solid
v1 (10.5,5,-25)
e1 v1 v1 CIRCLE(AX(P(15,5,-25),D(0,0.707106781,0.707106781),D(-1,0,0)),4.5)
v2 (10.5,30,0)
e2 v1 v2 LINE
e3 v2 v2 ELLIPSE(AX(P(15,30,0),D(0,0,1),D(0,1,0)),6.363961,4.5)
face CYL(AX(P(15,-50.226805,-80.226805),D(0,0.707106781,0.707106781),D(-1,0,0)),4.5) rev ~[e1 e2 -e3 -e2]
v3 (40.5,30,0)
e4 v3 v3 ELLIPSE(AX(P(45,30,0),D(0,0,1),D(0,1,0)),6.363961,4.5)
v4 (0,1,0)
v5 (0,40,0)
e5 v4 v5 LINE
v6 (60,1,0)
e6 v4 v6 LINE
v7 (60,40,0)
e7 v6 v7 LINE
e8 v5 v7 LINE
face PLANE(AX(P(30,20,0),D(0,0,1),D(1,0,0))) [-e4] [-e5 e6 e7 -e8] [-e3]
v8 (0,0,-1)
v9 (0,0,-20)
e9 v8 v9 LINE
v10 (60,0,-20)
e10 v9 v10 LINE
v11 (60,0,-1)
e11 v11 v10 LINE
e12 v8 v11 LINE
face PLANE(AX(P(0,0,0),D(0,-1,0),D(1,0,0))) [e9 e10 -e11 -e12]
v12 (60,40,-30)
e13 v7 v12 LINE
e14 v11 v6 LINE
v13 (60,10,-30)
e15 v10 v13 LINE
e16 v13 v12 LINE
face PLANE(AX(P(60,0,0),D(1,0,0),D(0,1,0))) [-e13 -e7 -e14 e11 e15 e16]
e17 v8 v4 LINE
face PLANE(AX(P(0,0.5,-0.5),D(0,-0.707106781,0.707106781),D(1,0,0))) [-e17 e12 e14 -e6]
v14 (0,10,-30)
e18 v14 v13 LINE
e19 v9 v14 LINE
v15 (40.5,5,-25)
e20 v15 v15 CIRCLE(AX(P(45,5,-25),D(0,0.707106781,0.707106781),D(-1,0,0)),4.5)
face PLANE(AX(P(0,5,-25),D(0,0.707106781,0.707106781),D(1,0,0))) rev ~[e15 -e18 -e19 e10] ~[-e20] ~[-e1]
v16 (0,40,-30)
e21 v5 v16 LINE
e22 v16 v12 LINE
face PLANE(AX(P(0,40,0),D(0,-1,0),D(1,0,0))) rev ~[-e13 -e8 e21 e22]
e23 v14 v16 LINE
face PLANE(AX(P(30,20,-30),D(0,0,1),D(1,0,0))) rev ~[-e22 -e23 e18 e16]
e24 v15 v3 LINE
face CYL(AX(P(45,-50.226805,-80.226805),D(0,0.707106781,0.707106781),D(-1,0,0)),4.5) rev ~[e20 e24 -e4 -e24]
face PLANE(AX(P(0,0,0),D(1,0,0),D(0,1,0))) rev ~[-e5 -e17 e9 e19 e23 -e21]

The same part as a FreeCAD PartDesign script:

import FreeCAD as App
import Part
import Sketcher

V = App.Vector


def edges_at(feature, points):
    """Names of the edges that pass closest to the given points."""
    edges = feature.Shape.Edges
    near = lambda p: min(range(len(edges)), key=lambda i: edges[i].distToShape(Part.Vertex(*p))[0])
    return sorted({f"Edge{near(p) + 1}" for p in points})

doc = App.newDocument("Part")
params = doc.addObject("Spreadsheet::Sheet", "Params")
for row, (alias, value) in enumerate([
    ("sketch1_width", "60 mm"),
    ("sketch1_height", "40 mm"),
    ("pad1_length", "30 mm"),
    ("chamfer_size", "10 mm"),
    ("sketch2_diameter", "9 mm"),
    ("hole_diameter", "9 mm"),
    ("chamfer2_size", "1 mm"),
], start=1):
    params.set(f"A{row}", alias)
    params.set(f"B{row}", "=" + value)
    params.setAlias(f"B{row}", alias)

body = doc.addObject("PartDesign::Body", "Body")

# Sketch on XY plane
sketch1 = body.newObject("Sketcher::SketchObject", "Sketch")
sketch1.AttachmentSupport = (doc.getObject("XY_Plane"), [""])
sketch1.MapMode = "FlatFace"
sketch1.addGeometry([
    Part.LineSegment(V(0, 40, 0), V(0, 0, 0)),
    Part.LineSegment(V(0, 0, 0), V(60, 0, 0)),
    Part.LineSegment(V(60, 0, 0), V(60, 40, 0)),
    Part.LineSegment(V(60, 40, 0), V(0, 40, 0)),
], False)
sketch1.addConstraint([
    Sketcher.Constraint("Coincident", 0, 2, 1, 1),
    Sketcher.Constraint("Coincident", 1, 2, 2, 1),
    Sketcher.Constraint("Coincident", 2, 2, 3, 1),
    Sketcher.Constraint("Coincident", 3, 2, 0, 1),
    Sketcher.Constraint("Vertical", 0),
    Sketcher.Constraint("Horizontal", 1),
    Sketcher.Constraint("Vertical", 2),
    Sketcher.Constraint("Horizontal", 3),
    Sketcher.Constraint("Coincident", 0, 2, -1, 1),
    Sketcher.Constraint("DistanceX", 1, 1, 1, 2, 60.0),
    Sketcher.Constraint("DistanceY", 0, 2, 0, 1, 40.0),
])
sketch1.setExpression("Constraints[9]", "Params.sketch1_width")
sketch1.setExpression("Constraints[10]", "Params.sketch1_height")
pad1 = body.newObject("PartDesign::Pad", "Pad")
pad1.Profile = sketch1
pad1.setExpression("Length", "Params.pad1_length")
pad1.Reversed = True
doc.recompute()

chamfer = body.newObject("PartDesign::Chamfer", "Chamfer")
chamfer.Base = (pad1, edges_at(pad1, [(30, 0, -30)]))
chamfer.setExpression("Size", "Params.chamfer_size")

# Sketch on an angled plane
sketch2 = body.newObject("Sketcher::SketchObject", "Sketch001")
sketch2.Placement = App.Placement(V(0, -10, -10), App.Rotation(V(1, 0, 0), V(0, -0.707106781, 0.707106781), V(0, -0.707106781, -0.707106781), "ZXY"))
sketch2.addGeometry([
    Part.Circle(V(15, -21.213203, 0), V(0, 0, 1), 4.5),
    Part.Circle(V(45, -21.213203, 0), V(0, 0, 1), 4.5),
], False)
sketch2.addConstraint([
    Sketcher.Constraint("Equal", 0, 1),
    Sketcher.Constraint("Horizontal", 0, 3, 1, 3),
    Sketcher.Constraint("Diameter", 0, 9.0),
    Sketcher.Constraint("DistanceX", -1, 1, 0, 3, 15.0),
    Sketcher.Constraint("DistanceX", -1, 1, 1, 3, 45.0),
    Sketcher.Constraint("DistanceY", 0, 3, -1, 1, 21.213203),
])
sketch2.setExpression("Constraints[2]", "Params.sketch2_diameter")
doc.recompute()
hole = body.newObject("PartDesign::Hole", "Hole")
hole.Profile = sketch2
hole.ThreadType = "None"
hole.setExpression("Diameter", "Params.hole_diameter")
hole.DepthType = "ThroughAll"
doc.recompute()

chamfer2 = body.newObject("PartDesign::Chamfer", "Chamfer001")
chamfer2.Base = (hole, edges_at(hole, [(30, 0, 0)]))
chamfer2.setExpression("Size", "Params.chamfer2_size")

doc.recompute()
